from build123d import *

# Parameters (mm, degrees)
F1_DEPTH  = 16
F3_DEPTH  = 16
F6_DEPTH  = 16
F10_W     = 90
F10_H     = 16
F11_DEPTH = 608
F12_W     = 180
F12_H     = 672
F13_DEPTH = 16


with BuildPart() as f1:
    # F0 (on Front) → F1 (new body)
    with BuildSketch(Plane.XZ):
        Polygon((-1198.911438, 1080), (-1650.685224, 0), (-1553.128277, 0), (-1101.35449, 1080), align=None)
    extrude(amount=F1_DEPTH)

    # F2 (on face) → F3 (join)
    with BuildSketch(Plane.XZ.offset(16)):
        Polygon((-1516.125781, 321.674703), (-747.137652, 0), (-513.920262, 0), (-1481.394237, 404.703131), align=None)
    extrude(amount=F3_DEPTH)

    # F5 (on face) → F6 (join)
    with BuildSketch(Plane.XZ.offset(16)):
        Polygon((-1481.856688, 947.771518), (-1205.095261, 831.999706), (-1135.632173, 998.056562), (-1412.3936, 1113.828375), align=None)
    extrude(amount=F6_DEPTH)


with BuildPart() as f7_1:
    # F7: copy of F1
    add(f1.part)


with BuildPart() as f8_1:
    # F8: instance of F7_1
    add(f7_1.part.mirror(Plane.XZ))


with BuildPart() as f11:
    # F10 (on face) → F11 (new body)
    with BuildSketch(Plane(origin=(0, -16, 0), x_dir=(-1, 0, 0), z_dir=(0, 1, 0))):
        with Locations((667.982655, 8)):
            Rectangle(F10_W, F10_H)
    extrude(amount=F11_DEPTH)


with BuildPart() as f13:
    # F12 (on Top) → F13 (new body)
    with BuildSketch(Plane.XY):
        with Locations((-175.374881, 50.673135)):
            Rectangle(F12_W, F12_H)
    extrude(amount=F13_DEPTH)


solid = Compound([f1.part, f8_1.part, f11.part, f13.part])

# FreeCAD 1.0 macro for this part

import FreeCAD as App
import Part
import Sketcher

V = App.Vector
Q = App.Units.Quantity

doc = App.newDocument("Part")
body = doc.addObject("PartDesign::Body", "Body")

# Sketch on XZ plane
sketch1 = body.newObject("Sketcher::SketchObject", "Sketch")
sketch1.AttachmentSupport = (doc.getObject("XZ_Plane"), [""])
sketch1.MapMode = "FlatFace"
sketch1.addGeometry([
    Part.LineSegment(V(-1198.911438, 1080, 0), V(-1650.685224, 0, 0)),
    Part.LineSegment(V(-1650.685224, 0, 0), V(-1553.128277, 0, 0)),
    Part.LineSegment(V(-1553.128277, 0, 0), V(-1101.35449, 1080, 0)),
    Part.LineSegment(V(-1101.35449, 1080, 0), V(-1198.911438, 1080, 0)),
], False)
sketch1.addConstraint([
    Sketcher.Constraint("Coincident", 0, 2, 1, 1),
    Sketcher.Constraint("Coincident", 1, 2, 2, 1),
    Sketcher.Constraint("Coincident", 2, 2, 3, 1),
    Sketcher.Constraint("Coincident", 3, 2, 0, 1),
    Sketcher.Constraint("Horizontal", 1),
    Sketcher.Constraint("Horizontal", 3),
    Sketcher.Constraint("PointOnObject", 0, 2, -1),
    Sketcher.Constraint("Parallel", 0, 2),
    Sketcher.Constraint("DistanceY", -1, 1, 2, 2, 1080.0),
    Sketcher.Constraint("Angle", 0, Q("-112.7 deg")),
    Sketcher.Constraint("DistanceX", 3, 2, 3, 1, 97.556948),
    Sketcher.Constraint("DistanceX", 2, 2, -1, 1, 1101.35449),
])
pad1 = body.newObject("PartDesign::Pad", "Pad")
pad1.Profile = sketch1
pad1.Length = 16

# Sketch on XZ plane
sketch2 = body.newObject("Sketcher::SketchObject", "Sketch001")
sketch2.AttachmentSupport = (doc.getObject("XZ_Plane"), [""])
sketch2.MapMode = "FlatFace"
sketch2.AttachmentOffset = App.Placement(V(0, 0, 16), App.Rotation())
sketch2.addGeometry([
    Part.LineSegment(V(-1516.125781, 321.674703, 0), V(-747.137652, 0, 0)),
    Part.LineSegment(V(-747.137652, 0, 0), V(-513.920262, 0, 0)),
    Part.LineSegment(V(-513.920262, 0, 0), V(-1481.394237, 404.703131, 0)),
    Part.LineSegment(V(-1481.394237, 404.703131, 0), V(-1516.125781, 321.674703, 0)),
], False)
sketch2.addConstraint([
    Sketcher.Constraint("Coincident", 0, 2, 1, 1),
    Sketcher.Constraint("Coincident", 1, 2, 2, 1),
    Sketcher.Constraint("Coincident", 2, 2, 3, 1),
    Sketcher.Constraint("Coincident", 3, 2, 0, 1),
    Sketcher.Constraint("Horizontal", 1),
    Sketcher.Constraint("PointOnObject", 0, 2, -1),
    Sketcher.Constraint("Parallel", 0, 2),
    Sketcher.Constraint("Perpendicular", 2, 3),
    Sketcher.Constraint("Distance", 3, 90.0),
    Sketcher.Constraint("Angle", 0, Q("-22.7 deg")),
    Sketcher.Constraint("Distance", 0, 833.557051),
    Sketcher.Constraint("DistanceX", 0, 2, -1, 1, 747.137652),
])
pad2 = body.newObject("PartDesign::Pad", "Pad001")
pad2.Profile = sketch2
pad2.Length = 16

# Sketch on XZ plane
sketch3 = body.newObject("Sketcher::SketchObject", "Sketch002")
sketch3.AttachmentSupport = (doc.getObject("XZ_Plane"), [""])
sketch3.MapMode = "FlatFace"
sketch3.AttachmentOffset = App.Placement(V(0, 0, 16), App.Rotation())
sketch3.addGeometry([
    Part.LineSegment(V(-1481.856688, 947.771518, 0), V(-1205.095261, 831.999706, 0)),
    Part.LineSegment(V(-1205.095261, 831.999706, 0), V(-1135.632173, 998.056562, 0)),
    Part.LineSegment(V(-1135.632173, 998.056562, 0), V(-1412.3936, 1113.828375, 0)),
    Part.LineSegment(V(-1412.3936, 1113.828375, 0), V(-1481.856688, 947.771518, 0)),
], False)
sketch3.addConstraint([
    Sketcher.Constraint("Coincident", 0, 2, 1, 1),
    Sketcher.Constraint("Coincident", 1, 2, 2, 1),
    Sketcher.Constraint("Coincident", 2, 2, 3, 1),
    Sketcher.Constraint("Coincident", 3, 2, 0, 1),
    Sketcher.Constraint("Perpendicular", 0, 1),
    Sketcher.Constraint("Perpendicular", 1, 2),
    Sketcher.Constraint("Perpendicular", 2, 3),
    Sketcher.Constraint("Distance", 0, 300.0),
    Sketcher.Constraint("Distance", 1, 180.0),
    Sketcher.Constraint("Angle", 0, Q("-22.7 deg")),
    Sketcher.Constraint("DistanceX", 2, 2, -1, 1, 1412.3936),
    Sketcher.Constraint("DistanceY", -1, 1, 1, 2, 998.056562),
])
pad3 = body.newObject("PartDesign::Pad", "Pad002")
pad3.Profile = sketch3
pad3.Length = 16
body2 = doc.addObject("PartDesign::Body", "Body001")
doc.recompute()

body2.BaseFeature = body
doc.recompute()
body3 = doc.addObject("PartDesign::Body", "Body002")
doc.recompute()

mirroring = doc.addObject("Part::Mirroring", "Mirroring")
mirroring.Source = body2
mirroring.Base = V(0, 0, 0)
mirroring.Normal = V(0, -1, 0)
body3.BaseFeature = mirroring
doc.recompute()
body4 = doc.addObject("PartDesign::Body", "Body003")

# Sketch on XZ plane
sketch4 = body4.newObject("Sketcher::SketchObject", "Sketch003")
sketch4.AttachmentSupport = (doc.getObject("XZ_Plane003"), [""])
sketch4.MapMode = "FlatFace"
sketch4.AttachmentOffset = App.Placement(V(0, 0, 16), App.Rotation())
sketch4.addGeometry([
    Part.LineSegment(V(-622.982655, 16, 0), V(-622.982655, 0, 0)),
    Part.LineSegment(V(-622.982655, 0, 0), V(-712.982655, 0, 0)),
    Part.LineSegment(V(-712.982655, 0, 0), V(-712.982655, 16, 0)),
    Part.LineSegment(V(-712.982655, 16, 0), V(-622.982655, 16, 0)),
], False)
sketch4.addConstraint([
    Sketcher.Constraint("Coincident", 0, 2, 1, 1),
    Sketcher.Constraint("Coincident", 1, 2, 2, 1),
    Sketcher.Constraint("Coincident", 2, 2, 3, 1),
    Sketcher.Constraint("Coincident", 3, 2, 0, 1),
    Sketcher.Constraint("Vertical", 0),
    Sketcher.Constraint("Horizontal", 1),
    Sketcher.Constraint("Vertical", 2),
    Sketcher.Constraint("Horizontal", 3),
    Sketcher.Constraint("PointOnObject", 0, 2, -1),
    Sketcher.Constraint("DistanceX", 1, 2, 1, 1, 90.0),
    Sketcher.Constraint("DistanceY", 0, 2, 0, 1, 16.0),
    Sketcher.Constraint("DistanceX", 0, 2, -1, 1, 622.982655),
])
pad4 = body4.newObject("PartDesign::Pad", "Pad003")
pad4.Profile = sketch4
pad4.Length = 608
pad4.Reversed = True
body5 = doc.addObject("PartDesign::Body", "Body004")

# Sketch on XY plane
sketch5 = body5.newObject("Sketcher::SketchObject", "Sketch004")
sketch5.AttachmentSupport = (doc.getObject("XY_Plane004"), [""])
sketch5.MapMode = "FlatFace"
sketch5.addGeometry([
    Part.LineSegment(V(-265.374881, 386.673135, 0), V(-265.374881, -285.326865, 0)),
    Part.LineSegment(V(-265.374881, -285.326865, 0), V(-85.374881, -285.326865, 0)),
    Part.LineSegment(V(-85.374881, -285.326865, 0), V(-85.374881, 386.673135, 0)),
    Part.LineSegment(V(-85.374881, 386.673135, 0), V(-265.374881, 386.673135, 0)),
], False)
sketch5.addConstraint([
    Sketcher.Constraint("Coincident", 0, 2, 1, 1),
    Sketcher.Constraint("Coincident", 1, 2, 2, 1),
    Sketcher.Constraint("Coincident", 2, 2, 3, 1),
    Sketcher.Constraint("Coincident", 3, 2, 0, 1),
    Sketcher.Constraint("Vertical", 0),
    Sketcher.Constraint("Horizontal", 1),
    Sketcher.Constraint("Vertical", 2),
    Sketcher.Constraint("Horizontal", 3),
    Sketcher.Constraint("DistanceX", 1, 1, 1, 2, 180.0),
    Sketcher.Constraint("DistanceY", 0, 2, 0, 1, 672.0),
    Sketcher.Constraint("DistanceX", 0, 2, -1, 1, 265.374881),
    Sketcher.Constraint("DistanceY", 0, 2, -1, 1, 285.326865),
])
pad5 = body5.newObject("PartDesign::Pad", "Pad004")
pad5.Profile = sketch5
pad5.Length = 16
body.Visibility = False
mirroring.Visibility = False

doc.recompute()
